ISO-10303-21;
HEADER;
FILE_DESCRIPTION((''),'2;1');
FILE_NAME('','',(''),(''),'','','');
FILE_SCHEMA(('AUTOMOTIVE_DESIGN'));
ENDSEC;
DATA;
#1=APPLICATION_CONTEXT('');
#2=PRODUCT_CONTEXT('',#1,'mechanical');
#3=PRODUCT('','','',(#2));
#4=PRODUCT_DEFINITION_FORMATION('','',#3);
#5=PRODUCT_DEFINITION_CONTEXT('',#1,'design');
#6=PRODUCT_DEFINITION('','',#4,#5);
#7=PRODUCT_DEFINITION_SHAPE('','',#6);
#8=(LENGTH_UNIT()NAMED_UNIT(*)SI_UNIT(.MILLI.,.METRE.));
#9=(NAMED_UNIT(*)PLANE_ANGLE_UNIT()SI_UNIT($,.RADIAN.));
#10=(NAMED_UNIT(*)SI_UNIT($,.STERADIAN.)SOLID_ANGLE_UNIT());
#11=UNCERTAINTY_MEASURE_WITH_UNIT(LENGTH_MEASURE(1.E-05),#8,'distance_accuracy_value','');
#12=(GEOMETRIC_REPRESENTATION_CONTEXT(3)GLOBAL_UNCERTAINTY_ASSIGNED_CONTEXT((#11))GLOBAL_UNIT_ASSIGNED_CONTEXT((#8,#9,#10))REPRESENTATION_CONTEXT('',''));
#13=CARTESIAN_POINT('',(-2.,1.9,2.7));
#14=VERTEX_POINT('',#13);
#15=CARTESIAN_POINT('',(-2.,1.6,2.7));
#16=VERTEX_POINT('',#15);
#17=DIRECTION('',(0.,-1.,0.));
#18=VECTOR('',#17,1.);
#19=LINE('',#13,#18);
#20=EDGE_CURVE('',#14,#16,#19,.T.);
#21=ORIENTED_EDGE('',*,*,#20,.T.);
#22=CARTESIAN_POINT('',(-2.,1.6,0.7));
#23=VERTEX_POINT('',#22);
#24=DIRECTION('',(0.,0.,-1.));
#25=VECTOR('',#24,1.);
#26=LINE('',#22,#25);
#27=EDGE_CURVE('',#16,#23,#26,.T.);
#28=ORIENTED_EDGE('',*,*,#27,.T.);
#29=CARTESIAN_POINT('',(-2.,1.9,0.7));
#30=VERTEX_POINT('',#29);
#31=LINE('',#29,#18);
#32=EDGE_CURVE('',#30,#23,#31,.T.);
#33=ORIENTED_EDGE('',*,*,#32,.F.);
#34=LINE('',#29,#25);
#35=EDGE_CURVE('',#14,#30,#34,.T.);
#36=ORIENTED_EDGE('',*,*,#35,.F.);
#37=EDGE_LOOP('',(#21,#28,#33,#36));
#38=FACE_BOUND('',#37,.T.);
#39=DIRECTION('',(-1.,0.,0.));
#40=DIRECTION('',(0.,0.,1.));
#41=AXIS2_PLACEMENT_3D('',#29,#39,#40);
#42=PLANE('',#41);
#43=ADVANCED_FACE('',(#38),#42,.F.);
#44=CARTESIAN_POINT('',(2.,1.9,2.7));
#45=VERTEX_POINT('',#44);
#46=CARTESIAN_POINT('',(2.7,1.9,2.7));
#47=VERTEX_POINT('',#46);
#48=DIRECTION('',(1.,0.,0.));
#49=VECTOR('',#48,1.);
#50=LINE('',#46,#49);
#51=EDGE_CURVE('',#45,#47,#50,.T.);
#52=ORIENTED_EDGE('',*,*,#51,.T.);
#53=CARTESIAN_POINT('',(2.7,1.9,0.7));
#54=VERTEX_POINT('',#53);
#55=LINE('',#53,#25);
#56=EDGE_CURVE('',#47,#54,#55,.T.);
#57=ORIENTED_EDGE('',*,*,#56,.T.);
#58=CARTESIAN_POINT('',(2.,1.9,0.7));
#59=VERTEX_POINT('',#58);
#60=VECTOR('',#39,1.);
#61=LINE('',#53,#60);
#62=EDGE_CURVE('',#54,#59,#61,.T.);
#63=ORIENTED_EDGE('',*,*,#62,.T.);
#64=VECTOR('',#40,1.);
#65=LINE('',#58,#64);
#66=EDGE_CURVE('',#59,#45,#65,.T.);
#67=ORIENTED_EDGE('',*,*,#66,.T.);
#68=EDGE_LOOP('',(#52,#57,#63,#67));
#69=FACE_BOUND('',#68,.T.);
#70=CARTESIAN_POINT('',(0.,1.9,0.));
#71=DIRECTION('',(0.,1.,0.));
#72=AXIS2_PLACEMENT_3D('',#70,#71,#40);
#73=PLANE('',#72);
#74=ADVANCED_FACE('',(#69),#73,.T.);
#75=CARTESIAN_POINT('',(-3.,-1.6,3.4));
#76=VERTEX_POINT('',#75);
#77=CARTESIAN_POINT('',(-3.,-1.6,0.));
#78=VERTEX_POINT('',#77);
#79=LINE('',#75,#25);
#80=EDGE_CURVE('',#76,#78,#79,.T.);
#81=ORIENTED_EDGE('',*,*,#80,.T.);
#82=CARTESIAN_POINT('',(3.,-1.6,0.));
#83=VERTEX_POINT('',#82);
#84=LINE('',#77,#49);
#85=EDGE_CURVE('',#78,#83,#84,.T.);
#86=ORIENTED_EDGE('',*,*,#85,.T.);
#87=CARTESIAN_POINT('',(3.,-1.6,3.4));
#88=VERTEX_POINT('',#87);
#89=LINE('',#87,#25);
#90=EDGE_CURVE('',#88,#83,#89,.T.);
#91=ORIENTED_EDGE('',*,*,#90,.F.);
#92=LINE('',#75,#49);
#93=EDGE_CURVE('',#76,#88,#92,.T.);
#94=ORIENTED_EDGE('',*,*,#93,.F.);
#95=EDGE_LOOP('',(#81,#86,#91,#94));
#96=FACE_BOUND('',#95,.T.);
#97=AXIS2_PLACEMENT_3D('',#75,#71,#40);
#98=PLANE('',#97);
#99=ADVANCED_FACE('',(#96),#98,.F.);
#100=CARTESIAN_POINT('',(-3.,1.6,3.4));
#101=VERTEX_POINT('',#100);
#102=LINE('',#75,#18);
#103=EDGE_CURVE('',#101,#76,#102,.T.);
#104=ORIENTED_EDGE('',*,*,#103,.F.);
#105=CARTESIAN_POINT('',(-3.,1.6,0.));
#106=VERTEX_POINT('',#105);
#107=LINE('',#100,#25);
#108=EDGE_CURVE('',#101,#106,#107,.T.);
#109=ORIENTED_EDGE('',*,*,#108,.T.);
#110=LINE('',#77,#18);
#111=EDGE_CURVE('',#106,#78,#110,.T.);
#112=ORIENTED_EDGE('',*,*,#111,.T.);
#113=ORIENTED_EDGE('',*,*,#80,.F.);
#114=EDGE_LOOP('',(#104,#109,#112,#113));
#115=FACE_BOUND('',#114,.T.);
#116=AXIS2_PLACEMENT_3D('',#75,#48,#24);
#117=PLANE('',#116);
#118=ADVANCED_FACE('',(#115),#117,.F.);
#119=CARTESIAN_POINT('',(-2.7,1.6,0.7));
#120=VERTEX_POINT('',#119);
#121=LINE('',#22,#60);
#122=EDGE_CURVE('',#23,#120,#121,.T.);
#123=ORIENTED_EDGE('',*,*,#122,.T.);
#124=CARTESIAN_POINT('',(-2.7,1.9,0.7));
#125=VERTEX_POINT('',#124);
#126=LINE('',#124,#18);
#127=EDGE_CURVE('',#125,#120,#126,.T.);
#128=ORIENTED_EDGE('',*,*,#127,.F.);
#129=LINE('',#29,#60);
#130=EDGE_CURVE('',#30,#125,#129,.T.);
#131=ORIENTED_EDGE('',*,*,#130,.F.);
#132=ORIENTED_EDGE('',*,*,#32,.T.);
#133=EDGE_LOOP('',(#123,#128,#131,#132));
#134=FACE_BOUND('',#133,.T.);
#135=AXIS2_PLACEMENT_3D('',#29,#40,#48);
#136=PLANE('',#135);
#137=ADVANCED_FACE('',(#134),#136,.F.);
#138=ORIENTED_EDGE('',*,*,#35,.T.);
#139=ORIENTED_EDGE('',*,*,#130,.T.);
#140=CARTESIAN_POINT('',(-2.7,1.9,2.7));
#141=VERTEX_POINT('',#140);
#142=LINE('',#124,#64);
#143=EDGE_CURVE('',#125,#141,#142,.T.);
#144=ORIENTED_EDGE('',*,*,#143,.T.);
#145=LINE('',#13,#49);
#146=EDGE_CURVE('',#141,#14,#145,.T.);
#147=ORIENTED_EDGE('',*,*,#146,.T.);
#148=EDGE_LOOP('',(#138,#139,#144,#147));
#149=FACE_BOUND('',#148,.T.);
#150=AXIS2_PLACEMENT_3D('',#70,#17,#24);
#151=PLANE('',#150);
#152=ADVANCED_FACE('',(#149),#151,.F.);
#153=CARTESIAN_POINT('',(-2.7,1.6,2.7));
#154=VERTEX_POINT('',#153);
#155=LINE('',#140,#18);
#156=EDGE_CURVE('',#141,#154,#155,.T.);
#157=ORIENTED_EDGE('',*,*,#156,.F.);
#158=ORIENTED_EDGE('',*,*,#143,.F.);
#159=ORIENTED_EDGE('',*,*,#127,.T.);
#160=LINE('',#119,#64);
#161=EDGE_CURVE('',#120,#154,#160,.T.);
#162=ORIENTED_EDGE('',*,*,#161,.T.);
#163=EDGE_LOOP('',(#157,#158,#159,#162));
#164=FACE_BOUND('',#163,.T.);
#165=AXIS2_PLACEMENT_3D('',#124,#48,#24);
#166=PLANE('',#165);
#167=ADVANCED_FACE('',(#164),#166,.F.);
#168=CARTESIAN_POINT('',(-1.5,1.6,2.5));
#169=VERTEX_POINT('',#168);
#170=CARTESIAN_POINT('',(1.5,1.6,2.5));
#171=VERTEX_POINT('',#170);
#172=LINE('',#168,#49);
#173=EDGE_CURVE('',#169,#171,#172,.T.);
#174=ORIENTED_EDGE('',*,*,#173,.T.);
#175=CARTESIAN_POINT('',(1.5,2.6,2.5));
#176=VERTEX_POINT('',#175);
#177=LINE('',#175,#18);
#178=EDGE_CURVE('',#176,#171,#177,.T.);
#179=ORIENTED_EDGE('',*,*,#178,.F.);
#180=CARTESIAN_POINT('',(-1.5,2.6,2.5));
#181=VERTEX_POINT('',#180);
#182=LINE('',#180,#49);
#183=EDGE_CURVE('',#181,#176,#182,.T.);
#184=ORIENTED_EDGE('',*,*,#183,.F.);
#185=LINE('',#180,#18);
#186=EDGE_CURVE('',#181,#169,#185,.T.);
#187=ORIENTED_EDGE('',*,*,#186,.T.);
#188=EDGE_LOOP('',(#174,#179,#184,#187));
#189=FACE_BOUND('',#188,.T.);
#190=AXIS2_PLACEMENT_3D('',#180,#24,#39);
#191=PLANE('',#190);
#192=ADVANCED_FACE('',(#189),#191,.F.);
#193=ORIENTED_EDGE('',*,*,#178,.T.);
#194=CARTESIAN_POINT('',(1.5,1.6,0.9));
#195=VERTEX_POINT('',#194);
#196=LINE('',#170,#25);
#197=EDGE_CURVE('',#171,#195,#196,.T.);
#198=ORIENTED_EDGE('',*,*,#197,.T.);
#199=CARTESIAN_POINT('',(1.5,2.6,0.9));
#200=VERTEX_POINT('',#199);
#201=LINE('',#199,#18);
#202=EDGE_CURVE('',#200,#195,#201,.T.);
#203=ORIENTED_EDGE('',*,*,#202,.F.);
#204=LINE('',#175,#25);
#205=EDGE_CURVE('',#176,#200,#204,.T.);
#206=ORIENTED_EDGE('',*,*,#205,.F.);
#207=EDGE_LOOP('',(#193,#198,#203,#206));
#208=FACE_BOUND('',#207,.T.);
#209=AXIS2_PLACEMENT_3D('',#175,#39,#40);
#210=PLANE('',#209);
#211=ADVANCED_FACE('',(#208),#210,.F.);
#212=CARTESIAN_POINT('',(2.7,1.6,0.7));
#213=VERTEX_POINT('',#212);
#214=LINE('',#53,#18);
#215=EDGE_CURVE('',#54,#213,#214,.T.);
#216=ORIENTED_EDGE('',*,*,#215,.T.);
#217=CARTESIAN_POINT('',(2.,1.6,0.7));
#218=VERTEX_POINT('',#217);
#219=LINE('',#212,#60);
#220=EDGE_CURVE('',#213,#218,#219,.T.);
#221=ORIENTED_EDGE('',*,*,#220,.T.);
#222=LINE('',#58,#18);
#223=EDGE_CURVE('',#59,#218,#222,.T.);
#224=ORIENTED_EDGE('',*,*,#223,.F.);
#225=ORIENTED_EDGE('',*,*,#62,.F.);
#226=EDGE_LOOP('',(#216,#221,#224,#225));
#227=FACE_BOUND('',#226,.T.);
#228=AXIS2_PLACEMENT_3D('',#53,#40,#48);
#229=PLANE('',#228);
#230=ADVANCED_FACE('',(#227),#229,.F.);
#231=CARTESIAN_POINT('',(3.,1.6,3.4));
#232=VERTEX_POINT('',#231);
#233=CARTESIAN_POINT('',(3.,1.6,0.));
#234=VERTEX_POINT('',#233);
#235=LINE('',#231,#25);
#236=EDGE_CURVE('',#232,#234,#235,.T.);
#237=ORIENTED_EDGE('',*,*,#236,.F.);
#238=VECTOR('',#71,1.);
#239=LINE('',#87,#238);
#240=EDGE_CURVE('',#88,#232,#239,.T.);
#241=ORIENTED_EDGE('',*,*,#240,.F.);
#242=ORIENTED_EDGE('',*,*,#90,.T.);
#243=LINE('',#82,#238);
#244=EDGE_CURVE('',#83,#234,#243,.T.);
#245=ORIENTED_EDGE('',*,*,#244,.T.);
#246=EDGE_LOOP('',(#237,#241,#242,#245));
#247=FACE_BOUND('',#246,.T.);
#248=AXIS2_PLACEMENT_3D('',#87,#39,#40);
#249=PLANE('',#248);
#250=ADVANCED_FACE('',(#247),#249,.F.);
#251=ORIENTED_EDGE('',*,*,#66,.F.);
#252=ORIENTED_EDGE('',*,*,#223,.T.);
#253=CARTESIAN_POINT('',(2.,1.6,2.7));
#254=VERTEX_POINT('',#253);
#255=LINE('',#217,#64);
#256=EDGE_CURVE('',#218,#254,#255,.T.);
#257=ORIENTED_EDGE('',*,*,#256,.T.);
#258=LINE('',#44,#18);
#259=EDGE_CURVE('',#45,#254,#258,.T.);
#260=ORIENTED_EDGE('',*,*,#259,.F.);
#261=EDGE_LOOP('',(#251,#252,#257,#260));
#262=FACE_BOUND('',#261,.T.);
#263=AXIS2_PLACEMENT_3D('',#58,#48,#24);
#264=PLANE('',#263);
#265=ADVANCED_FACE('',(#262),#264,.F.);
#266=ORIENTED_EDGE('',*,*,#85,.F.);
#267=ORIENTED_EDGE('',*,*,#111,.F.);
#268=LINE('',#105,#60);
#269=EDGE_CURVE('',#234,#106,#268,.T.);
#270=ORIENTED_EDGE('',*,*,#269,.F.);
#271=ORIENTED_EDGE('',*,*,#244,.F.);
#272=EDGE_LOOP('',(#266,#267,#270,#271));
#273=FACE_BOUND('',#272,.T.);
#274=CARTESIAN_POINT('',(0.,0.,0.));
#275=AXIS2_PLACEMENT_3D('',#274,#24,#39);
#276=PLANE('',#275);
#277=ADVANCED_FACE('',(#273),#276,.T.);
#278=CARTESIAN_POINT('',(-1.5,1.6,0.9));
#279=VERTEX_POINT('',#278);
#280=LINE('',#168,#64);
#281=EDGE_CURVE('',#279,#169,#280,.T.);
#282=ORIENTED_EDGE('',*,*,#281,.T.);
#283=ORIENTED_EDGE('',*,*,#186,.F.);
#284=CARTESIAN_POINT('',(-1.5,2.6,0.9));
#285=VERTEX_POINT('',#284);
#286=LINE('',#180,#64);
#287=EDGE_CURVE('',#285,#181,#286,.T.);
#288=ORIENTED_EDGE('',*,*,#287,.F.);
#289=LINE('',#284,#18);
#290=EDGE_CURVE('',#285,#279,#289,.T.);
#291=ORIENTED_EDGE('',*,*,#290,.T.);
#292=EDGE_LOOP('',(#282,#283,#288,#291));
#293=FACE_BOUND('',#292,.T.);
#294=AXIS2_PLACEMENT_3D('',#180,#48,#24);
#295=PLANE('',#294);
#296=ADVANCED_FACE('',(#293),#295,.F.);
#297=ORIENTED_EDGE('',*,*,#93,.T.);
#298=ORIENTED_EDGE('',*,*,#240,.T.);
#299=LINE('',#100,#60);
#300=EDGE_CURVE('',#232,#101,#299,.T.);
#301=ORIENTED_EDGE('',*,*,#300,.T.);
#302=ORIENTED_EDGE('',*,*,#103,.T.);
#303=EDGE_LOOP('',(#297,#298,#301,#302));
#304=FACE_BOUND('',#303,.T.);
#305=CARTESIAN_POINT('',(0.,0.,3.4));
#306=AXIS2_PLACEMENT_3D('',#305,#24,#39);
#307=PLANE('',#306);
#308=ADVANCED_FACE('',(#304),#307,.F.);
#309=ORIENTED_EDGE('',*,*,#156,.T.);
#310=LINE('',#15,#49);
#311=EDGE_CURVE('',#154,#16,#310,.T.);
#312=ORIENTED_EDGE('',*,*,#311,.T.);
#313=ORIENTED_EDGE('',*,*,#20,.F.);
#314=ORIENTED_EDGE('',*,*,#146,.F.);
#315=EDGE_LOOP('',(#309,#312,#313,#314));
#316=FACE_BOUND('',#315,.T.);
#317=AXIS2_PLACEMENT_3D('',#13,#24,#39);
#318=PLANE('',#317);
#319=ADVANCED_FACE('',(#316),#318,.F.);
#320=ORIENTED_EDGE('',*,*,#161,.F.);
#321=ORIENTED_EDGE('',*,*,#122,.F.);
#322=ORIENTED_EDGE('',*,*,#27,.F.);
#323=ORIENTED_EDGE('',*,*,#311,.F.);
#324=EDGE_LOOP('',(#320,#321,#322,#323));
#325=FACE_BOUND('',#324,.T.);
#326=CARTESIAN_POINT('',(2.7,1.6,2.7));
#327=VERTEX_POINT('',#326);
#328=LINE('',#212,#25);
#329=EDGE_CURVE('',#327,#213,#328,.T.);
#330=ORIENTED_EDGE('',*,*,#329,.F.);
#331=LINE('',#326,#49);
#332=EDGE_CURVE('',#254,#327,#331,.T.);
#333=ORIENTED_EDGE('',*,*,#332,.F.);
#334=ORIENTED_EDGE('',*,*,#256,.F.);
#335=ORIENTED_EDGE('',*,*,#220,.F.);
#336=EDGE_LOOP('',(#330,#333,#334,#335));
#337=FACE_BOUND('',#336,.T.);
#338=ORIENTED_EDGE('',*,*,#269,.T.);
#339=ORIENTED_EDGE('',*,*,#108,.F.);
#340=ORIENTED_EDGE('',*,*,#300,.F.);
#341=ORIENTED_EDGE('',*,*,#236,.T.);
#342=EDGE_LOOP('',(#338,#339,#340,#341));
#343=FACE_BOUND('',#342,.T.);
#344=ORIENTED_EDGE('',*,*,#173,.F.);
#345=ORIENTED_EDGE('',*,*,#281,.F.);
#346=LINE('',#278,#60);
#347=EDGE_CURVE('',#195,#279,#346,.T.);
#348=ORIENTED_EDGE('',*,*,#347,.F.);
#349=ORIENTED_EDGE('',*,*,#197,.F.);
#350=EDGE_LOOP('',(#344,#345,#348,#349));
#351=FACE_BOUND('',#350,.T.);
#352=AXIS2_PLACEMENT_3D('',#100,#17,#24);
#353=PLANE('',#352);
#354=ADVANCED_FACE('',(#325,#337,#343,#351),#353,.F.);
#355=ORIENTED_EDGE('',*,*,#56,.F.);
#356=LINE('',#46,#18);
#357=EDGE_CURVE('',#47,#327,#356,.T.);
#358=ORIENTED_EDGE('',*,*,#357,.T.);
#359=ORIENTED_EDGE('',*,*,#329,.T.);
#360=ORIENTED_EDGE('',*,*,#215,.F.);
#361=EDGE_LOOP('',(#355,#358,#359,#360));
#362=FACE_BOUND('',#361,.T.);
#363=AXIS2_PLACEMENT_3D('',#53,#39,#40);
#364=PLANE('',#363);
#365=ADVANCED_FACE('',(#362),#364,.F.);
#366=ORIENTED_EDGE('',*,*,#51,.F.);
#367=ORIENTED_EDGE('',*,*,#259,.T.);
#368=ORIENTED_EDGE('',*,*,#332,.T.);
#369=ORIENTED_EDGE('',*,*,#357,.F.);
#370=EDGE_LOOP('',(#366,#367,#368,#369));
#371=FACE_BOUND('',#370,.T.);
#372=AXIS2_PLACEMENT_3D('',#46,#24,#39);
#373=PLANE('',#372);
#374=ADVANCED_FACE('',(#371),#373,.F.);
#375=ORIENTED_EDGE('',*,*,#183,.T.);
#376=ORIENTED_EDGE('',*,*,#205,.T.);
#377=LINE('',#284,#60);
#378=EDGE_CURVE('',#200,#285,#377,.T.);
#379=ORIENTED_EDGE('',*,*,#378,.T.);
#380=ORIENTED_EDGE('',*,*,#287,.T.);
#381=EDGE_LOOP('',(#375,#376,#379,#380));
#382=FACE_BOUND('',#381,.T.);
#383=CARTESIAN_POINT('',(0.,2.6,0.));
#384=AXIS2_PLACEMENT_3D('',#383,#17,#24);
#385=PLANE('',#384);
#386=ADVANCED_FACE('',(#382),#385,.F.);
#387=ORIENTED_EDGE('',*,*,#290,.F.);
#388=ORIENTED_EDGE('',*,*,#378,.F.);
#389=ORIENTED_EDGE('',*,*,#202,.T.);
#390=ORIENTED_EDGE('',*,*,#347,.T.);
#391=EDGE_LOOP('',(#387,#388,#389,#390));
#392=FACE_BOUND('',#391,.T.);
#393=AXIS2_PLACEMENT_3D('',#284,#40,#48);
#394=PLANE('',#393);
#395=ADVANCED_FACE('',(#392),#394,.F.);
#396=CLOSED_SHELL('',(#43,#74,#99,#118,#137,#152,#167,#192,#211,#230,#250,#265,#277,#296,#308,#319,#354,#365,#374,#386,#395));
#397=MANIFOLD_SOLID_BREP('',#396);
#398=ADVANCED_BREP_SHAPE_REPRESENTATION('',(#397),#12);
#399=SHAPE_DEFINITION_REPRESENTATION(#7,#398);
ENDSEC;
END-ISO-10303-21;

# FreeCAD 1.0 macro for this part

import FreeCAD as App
import Part
import Sketcher

V = App.Vector
Q = App.Units.Quantity

doc = App.newDocument("Part")
body = doc.addObject("PartDesign::Body", "Body")

sketch1 = body.newObject("Sketcher::SketchObject", "Sketch")
sketch1.AttachmentSupport = (doc.getObject("XY_Plane"), [""])
sketch1.MapMode = "FlatFace"
sketch1.addGeometry([
    Part.LineSegment(V(-3, 1.6, 0), V(-3, -1.6, 0)),
    Part.LineSegment(V(-3, -1.6, 0), V(3, -1.6, 0)),
    Part.LineSegment(V(3, -1.6, 0), V(3, 1.6, 0)),
    Part.LineSegment(V(3, 1.6, 0), V(-3, 1.6, 0)),
], False)
sketch1.addConstraint([
    Sketcher.Constraint("Coincident", 0, 2, 1, 1),
    Sketcher.Constraint("Coincident", 1, 2, 2, 1),
    Sketcher.Constraint("Coincident", 2, 2, 3, 1),
    Sketcher.Constraint("Coincident", 3, 2, 0, 1),
    Sketcher.Constraint("Vertical", 0),
    Sketcher.Constraint("Horizontal", 1),
    Sketcher.Constraint("Vertical", 2),
    Sketcher.Constraint("Horizontal", 3),
    Sketcher.Constraint("Symmetric", 0, 2, 2, 2, -1, 1),
    Sketcher.Constraint("DistanceX", 1, 1, 1, 2, Q("6 mm")),
    Sketcher.Constraint("DistanceY", 0, 2, 0, 1, Q("3.2 mm")),
])
pad1 = body.newObject("PartDesign::Pad", "Pad")
pad1.Profile = sketch1
pad1.Length = 3.4

sketch2 = body.newObject("Sketcher::SketchObject", "Sketch001")
sketch2.AttachmentSupport = (doc.getObject("XZ_Plane"), [""])
sketch2.MapMode = "FlatFace"
sketch2.AttachmentOffset = App.Placement(V(0, 0, -1.6), App.Rotation())
sketch2.addGeometry([
    Part.LineSegment(V(-1.5, 0.9, 0), V(-1.5, 2.5, 0)),
    Part.LineSegment(V(-1.5, 2.5, 0), V(1.5, 2.5, 0)),
    Part.LineSegment(V(1.5, 2.5, 0), V(1.5, 0.9, 0)),
    Part.LineSegment(V(1.5, 0.9, 0), V(-1.5, 0.9, 0)),
], False)
sketch2.addConstraint([
    Sketcher.Constraint("Coincident", 0, 2, 1, 1),
    Sketcher.Constraint("Coincident", 1, 2, 2, 1),
    Sketcher.Constraint("Coincident", 2, 2, 3, 1),
    Sketcher.Constraint("Coincident", 3, 2, 0, 1),
    Sketcher.Constraint("Vertical", 0),
    Sketcher.Constraint("Horizontal", 1),
    Sketcher.Constraint("Vertical", 2),
    Sketcher.Constraint("Horizontal", 3),
    Sketcher.Constraint("DistanceX", 1, 1, 1, 2, Q("3 mm")),
    Sketcher.Constraint("DistanceY", 0, 1, 0, 2, Q("1.6 mm")),
    Sketcher.Constraint("DistanceX", 0, 2, -1, 1, Q("1.5 mm")),
    Sketcher.Constraint("DistanceY", -1, 1, 0, 2, Q("2.5 mm")),
])
pad2 = body.newObject("PartDesign::Pad", "Pad001")
pad2.Profile = sketch2
pad2.Length = 1
pad2.Reversed = True

sketch3 = body.newObject("Sketcher::SketchObject", "Sketch002")
sketch3.AttachmentSupport = (doc.getObject("XZ_Plane"), [""])
sketch3.MapMode = "FlatFace"
sketch3.AttachmentOffset = App.Placement(V(0, 0, -1.6), App.Rotation())
sketch3.addGeometry([
    Part.LineSegment(V(-2.7, 0.7, 0), V(-2.7, 2.7, 0)),
    Part.LineSegment(V(-2.7, 2.7, 0), V(-2, 2.7, 0)),
    Part.LineSegment(V(-2, 2.7, 0), V(-2, 0.7, 0)),
    Part.LineSegment(V(-2, 0.7, 0), V(-2.7, 0.7, 0)),
    Part.LineSegment(V(2, 0.7, 0), V(2, 2.7, 0)),
    Part.LineSegment(V(2, 2.7, 0), V(2.7, 2.7, 0)),
    Part.LineSegment(V(2.7, 2.7, 0), V(2.7, 0.7, 0)),
    Part.LineSegment(V(2.7, 0.7, 0), V(2, 0.7, 0)),
], False)
sketch3.addConstraint([
    Sketcher.Constraint("Coincident", 0, 2, 1, 1),
    Sketcher.Constraint("Coincident", 1, 2, 2, 1),
    Sketcher.Constraint("Coincident", 2, 2, 3, 1),
    Sketcher.Constraint("Coincident", 3, 2, 0, 1),
    Sketcher.Constraint("Coincident", 4, 2, 5, 1),
    Sketcher.Constraint("Coincident", 5, 2, 6, 1),
    Sketcher.Constraint("Coincident", 6, 2, 7, 1),
    Sketcher.Constraint("Coincident", 7, 2, 4, 1),
    Sketcher.Constraint("Vertical", 0),
    Sketcher.Constraint("Horizontal", 1),
    Sketcher.Constraint("Vertical", 2),
    Sketcher.Constraint("Horizontal", 3),
    Sketcher.Constraint("Vertical", 4),
    Sketcher.Constraint("Horizontal", 5),
    Sketcher.Constraint("Vertical", 6),
    Sketcher.Constraint("Horizontal", 7),
    Sketcher.Constraint("Symmetric", 1, 2, 4, 2, -2),
    Sketcher.Constraint("Symmetric", 3, 2, 6, 2, -2),
    Sketcher.Constraint("DistanceY", 0, 1, 0, 2, Q("2 mm")),
    Sketcher.Constraint("DistanceX", 1, 1, 1, 2, Q("0.7 mm")),
    Sketcher.Constraint("DistanceX", 1, 2, -1, 1, Q("2 mm")),
    Sketcher.Constraint("DistanceY", -1, 1, 0, 2, Q("2.7 mm")),
])
pad3 = body.newObject("PartDesign::Pad", "Pad002")
pad3.Profile = sketch3
pad3.Length = 0.3
pad3.Reversed = True

doc.recompute()
